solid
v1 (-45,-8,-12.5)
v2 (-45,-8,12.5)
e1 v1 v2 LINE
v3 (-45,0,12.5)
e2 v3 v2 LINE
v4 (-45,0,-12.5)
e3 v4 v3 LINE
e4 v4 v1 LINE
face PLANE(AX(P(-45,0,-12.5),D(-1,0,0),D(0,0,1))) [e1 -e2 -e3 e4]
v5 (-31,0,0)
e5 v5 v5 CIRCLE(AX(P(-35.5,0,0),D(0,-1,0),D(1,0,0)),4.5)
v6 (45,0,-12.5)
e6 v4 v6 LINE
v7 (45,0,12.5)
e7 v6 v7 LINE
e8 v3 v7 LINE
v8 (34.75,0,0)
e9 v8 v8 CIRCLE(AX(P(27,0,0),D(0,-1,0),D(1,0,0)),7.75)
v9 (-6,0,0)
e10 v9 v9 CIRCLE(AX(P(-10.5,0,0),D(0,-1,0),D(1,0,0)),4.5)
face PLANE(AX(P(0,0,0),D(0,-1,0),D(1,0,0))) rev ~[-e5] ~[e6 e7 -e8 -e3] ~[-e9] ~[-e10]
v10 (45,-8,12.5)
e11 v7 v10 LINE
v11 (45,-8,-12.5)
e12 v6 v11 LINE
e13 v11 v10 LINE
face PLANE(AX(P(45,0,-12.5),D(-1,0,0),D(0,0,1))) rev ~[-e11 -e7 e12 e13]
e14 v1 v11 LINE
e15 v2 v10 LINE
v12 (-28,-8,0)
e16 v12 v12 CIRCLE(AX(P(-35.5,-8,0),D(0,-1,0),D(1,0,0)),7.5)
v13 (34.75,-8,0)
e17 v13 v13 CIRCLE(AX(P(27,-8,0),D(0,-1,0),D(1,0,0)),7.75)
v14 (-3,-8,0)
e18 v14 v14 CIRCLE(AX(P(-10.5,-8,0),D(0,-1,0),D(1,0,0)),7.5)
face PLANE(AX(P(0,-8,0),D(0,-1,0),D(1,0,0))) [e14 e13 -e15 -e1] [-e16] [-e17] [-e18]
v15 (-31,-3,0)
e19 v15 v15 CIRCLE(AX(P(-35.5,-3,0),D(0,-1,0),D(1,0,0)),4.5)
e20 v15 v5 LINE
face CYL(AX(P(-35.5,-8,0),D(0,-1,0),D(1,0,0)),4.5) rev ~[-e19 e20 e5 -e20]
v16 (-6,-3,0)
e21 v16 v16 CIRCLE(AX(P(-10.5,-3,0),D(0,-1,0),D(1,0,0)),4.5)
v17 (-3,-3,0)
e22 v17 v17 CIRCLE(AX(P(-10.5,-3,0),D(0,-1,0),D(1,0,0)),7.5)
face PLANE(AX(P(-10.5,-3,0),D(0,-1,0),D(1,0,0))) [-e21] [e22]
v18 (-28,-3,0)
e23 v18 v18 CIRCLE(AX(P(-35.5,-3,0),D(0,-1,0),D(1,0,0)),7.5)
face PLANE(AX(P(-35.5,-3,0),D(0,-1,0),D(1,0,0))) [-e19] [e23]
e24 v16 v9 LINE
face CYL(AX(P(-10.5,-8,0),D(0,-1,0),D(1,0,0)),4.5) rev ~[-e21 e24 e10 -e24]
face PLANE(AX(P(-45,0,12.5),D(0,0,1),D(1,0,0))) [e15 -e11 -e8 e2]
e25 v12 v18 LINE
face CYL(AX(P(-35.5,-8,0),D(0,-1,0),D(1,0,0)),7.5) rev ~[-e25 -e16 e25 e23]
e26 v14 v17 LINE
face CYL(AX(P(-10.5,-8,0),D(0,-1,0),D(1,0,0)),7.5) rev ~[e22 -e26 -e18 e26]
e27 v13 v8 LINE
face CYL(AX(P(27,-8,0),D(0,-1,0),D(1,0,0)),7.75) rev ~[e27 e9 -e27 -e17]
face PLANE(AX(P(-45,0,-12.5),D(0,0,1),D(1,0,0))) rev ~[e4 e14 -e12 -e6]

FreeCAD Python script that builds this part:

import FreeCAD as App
import Part
import Sketcher
from FreeCAD import Vector

doc = App.newDocument("Part")
body = doc.addObject("PartDesign::Body", "Body")

# Sketch on XZ plane
sketch1 = body.newObject("Sketcher::SketchObject", "Sketch")
sketch1.AttachmentSupport = (doc.getObject("XZ_Plane"), [""])
sketch1.MapMode = "FlatFace"
sketch1.addGeometry([
    Part.LineSegment(Vector(-45, 12, 0), Vector(-45, -12, 0)),
    Part.LineSegment(Vector(-45, -12, 0), Vector(45, -12, 0)),
    Part.LineSegment(Vector(45, -12, 0), Vector(45, 12, 0)),
    Part.LineSegment(Vector(45, 12, 0), Vector(-45, 12, 0)),
], False)
sketch1.addConstraint([
    Sketcher.Constraint("Coincident", 0, 2, 1, 1),
    Sketcher.Constraint("Coincident", 1, 2, 2, 1),
    Sketcher.Constraint("Coincident", 2, 2, 3, 1),
    Sketcher.Constraint("Coincident", 3, 2, 0, 1),
    Sketcher.Constraint("Vertical", 0),
    Sketcher.Constraint("Horizontal", 1),
    Sketcher.Constraint("Vertical", 2),
    Sketcher.Constraint("Horizontal", 3),
    Sketcher.Constraint("Symmetric", 0, 2, 2, 2, -1, 1),
    Sketcher.Constraint("DistanceX", 1, 1, 1, 2, 90.0),
    Sketcher.Constraint("DistanceY", 0, 2, 0, 1, 25.0),
])
pad1 = body.newObject("PartDesign::Pad", "Pad")
pad1.Profile = sketch1
pad1.Length = 8

# Sketch on XZ plane
sketch2 = body.newObject("Sketcher::SketchObject", "Sketch001")
sketch2.AttachmentSupport = (doc.getObject("XZ_Plane"), [""])
sketch2.MapMode = "FlatFace"
sketch2.AttachmentOffset = App.Placement(Vector(0, 0, 8), App.Rotation())
sketch2.addGeometry([
    Part.Circle(Vector(-35.5, 0, 0), Vector(0, 0, 1), 4.5),
    Part.Circle(Vector(-10.5, 0, 0), Vector(0, 0, 1), 4.5),
    Part.Circle(Vector(27, 0, 0), Vector(0, 0, 1), 7.8),
], False)
sketch2.addConstraint([
    Sketcher.Constraint("Equal", 0, 1),
    Sketcher.Constraint("PointOnObject", 0, 3, -1),
    Sketcher.Constraint("PointOnObject", 1, 3, -1),
    Sketcher.Constraint("PointOnObject", 2, 3, -1),
    Sketcher.Constraint("Diameter", 0, 9.0),
    Sketcher.Constraint("Diameter", 2, 15.5),
    Sketcher.Constraint("DistanceX", -1, 1, 2, 3, 27.0),
    Sketcher.Constraint("DistanceX", 0, 3, 1, 3, 25.0),
    Sketcher.Constraint("DistanceX", 0, 3, -1, 1, 35.5),
])
pocket1 = body.newObject("PartDesign::Pocket", "Pocket")
pocket1.Profile = sketch2
pocket1.Type = "ThroughAll"

# Sketch on XZ plane
sketch3 = body.newObject("Sketcher::SketchObject", "Sketch002")
sketch3.AttachmentSupport = (doc.getObject("XZ_Plane"), [""])
sketch3.MapMode = "FlatFace"
sketch3.AttachmentOffset = App.Placement(Vector(0, 0, 8), App.Rotation())
sketch3.addGeometry([
    Part.Circle(Vector(-35.5, 0, 0), Vector(0, 0, 1), 7.5),  # 0
    Part.Circle(Vector(-35.5, 0, 0), Vector(0, 0, 1), 4.5),  # 1
    Part.Circle(Vector(-10.5, 0, 0), Vector(0, 0, 1), 7.5),  # 2
    Part.Circle(Vector(-10.5, 0, 0), Vector(0, 0, 1), 4.5),  # 3
    Part.Circle(Vector(27, 0, 0), Vector(0, 0, 1), 7.8),  # 4
], False)
sketch3.addConstraint([
    Sketcher.Constraint("Coincident", 1, 3, 0, 3),
    Sketcher.Constraint("Coincident", 3, 3, 2, 3),
    Sketcher.Constraint("Equal", 0, 2),
    Sketcher.Constraint("Equal", 1, 3),
    Sketcher.Constraint("PointOnObject", 0, 3, -1),
    Sketcher.Constraint("PointOnObject", 2, 3, -1),
    Sketcher.Constraint("PointOnObject", 4, 3, -1),
    Sketcher.Constraint("Diameter", 0, 15.0),
    Sketcher.Constraint("Diameter", 1, 9.0),
    Sketcher.Constraint("Diameter", 4, 15.5),
    Sketcher.Constraint("DistanceX", -1, 1, 4, 3, 27.0),
    Sketcher.Constraint("DistanceX", 0, 3, 2, 3, 25.0),
    Sketcher.Constraint("DistanceX", 0, 3, -1, 1, 35.5),
])
pocket2 = body.newObject("PartDesign::Pocket", "Pocket001")
pocket2.Profile = sketch3
pocket2.Length = 5

doc.recompute()
